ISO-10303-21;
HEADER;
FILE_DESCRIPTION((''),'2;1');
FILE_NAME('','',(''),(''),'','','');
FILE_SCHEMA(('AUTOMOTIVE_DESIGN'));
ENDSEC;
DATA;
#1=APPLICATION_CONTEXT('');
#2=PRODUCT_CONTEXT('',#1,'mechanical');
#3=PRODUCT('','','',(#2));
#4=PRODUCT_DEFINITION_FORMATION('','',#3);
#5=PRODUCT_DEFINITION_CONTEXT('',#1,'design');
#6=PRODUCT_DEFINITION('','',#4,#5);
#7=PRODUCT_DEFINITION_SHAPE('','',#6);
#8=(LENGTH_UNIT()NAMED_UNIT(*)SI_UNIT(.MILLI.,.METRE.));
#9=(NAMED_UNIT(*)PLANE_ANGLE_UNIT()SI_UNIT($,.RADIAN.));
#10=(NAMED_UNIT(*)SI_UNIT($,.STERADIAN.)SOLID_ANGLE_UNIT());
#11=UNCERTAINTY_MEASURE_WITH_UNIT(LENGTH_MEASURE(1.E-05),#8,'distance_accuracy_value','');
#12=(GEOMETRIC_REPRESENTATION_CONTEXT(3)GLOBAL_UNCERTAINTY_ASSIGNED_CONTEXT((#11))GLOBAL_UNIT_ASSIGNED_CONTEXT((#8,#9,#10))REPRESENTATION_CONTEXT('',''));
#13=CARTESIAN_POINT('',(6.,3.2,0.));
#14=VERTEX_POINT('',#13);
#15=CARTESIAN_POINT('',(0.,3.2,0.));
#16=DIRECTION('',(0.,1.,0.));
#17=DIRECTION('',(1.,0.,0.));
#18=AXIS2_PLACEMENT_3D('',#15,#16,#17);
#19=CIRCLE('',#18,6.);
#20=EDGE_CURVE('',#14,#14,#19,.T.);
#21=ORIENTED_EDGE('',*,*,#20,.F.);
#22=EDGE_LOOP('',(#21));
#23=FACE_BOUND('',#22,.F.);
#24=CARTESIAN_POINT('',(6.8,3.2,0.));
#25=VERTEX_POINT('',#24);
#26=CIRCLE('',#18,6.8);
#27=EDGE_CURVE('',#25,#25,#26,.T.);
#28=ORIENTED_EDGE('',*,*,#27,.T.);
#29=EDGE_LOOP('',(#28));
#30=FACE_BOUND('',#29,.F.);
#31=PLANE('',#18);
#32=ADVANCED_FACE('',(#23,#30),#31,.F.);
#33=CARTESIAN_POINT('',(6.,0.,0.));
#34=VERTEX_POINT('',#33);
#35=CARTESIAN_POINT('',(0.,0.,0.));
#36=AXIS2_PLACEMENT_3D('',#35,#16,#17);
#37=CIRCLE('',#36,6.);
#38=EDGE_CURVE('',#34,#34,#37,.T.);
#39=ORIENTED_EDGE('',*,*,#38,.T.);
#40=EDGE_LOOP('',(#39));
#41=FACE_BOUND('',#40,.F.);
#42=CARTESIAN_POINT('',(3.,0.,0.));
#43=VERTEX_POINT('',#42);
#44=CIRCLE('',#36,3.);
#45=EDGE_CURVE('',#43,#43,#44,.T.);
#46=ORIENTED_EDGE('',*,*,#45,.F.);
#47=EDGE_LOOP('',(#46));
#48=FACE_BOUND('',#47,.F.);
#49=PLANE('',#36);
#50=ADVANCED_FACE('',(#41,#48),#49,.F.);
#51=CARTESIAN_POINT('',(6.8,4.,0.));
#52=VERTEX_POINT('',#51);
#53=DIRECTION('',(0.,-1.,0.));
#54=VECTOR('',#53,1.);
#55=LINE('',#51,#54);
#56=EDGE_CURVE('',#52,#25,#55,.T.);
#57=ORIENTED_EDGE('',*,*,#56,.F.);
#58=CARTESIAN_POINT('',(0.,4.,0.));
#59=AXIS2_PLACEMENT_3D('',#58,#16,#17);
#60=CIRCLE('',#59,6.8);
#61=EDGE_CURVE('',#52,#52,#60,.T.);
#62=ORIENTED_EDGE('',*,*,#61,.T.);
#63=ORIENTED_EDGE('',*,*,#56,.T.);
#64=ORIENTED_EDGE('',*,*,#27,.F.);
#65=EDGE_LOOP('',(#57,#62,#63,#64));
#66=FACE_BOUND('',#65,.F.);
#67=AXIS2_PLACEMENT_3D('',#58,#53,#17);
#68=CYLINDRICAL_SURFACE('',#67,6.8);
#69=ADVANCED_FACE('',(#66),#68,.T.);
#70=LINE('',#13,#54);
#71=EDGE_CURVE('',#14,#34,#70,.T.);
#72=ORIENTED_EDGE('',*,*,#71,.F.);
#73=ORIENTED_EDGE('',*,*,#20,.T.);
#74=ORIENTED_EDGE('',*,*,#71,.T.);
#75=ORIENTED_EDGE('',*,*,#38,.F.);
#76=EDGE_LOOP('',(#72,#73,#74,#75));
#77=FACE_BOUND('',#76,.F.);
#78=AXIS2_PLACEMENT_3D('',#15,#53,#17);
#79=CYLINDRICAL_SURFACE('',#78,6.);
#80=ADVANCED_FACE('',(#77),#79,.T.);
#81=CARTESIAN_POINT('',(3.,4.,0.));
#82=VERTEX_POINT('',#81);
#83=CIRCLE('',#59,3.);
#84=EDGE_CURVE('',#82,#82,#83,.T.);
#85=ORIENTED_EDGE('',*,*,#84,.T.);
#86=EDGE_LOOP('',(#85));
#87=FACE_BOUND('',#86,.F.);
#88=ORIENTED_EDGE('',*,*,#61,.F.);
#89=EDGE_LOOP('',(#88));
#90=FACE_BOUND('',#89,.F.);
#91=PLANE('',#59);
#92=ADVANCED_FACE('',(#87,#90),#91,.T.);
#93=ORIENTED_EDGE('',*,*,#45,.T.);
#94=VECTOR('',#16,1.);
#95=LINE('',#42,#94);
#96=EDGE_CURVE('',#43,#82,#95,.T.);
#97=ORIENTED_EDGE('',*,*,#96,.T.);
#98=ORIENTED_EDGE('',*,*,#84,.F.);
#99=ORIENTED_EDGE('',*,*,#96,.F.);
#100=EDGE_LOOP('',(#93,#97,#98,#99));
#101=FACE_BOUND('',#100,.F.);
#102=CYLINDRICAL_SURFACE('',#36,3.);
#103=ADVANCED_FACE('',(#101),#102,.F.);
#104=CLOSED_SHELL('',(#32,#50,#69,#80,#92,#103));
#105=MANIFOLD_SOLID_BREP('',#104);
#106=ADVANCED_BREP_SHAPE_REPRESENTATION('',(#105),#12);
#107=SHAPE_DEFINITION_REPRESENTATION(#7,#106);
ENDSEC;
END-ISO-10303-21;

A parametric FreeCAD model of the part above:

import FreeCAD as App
import Part
import Sketcher

V = App.Vector
Q = App.Units.Quantity

doc = App.newDocument("Part")
params = doc.addObject("Spreadsheet::Sheet", "Params")
for row, (alias, value) in enumerate([
    ("sketch1_width", "3 mm"),
    ("sketch1_height", "4 mm"),
    ("sketch1_width2", "3.8 mm"),
    ("revolution_angle", "360 deg"),
], start=1):
    params.set(f"A{row}", alias)
    params.set(f"B{row}", "=" + value)
    params.setAlias(f"B{row}", alias)

body = doc.addObject("PartDesign::Body", "Body")

sketch1 = body.newObject("Sketcher::SketchObject", "Sketch")
sketch1.AttachmentSupport = (doc.getObject("XY_Plane"), [""])
sketch1.MapMode = "FlatFace"
sketch1.addGeometry([
    Part.LineSegment(V(6.8, 4, 0), V(3, 4, 0)),
    Part.LineSegment(V(3, 4, 0), V(3, 0, 0)),
    Part.LineSegment(V(3, 0, 0), V(6, 0, 0)),
    Part.LineSegment(V(6, 0, 0), V(6, 3.2, 0)),
    Part.LineSegment(V(6, 3.2, 0), V(6.8, 3.2, 0)),
    Part.LineSegment(V(6.8, 3.2, 0), V(6.8, 4, 0)),
], False)
sketch1.addConstraint([
    Sketcher.Constraint("Coincident", 0, 2, 1, 1),
    Sketcher.Constraint("Coincident", 1, 2, 2, 1),
    Sketcher.Constraint("Coincident", 2, 2, 3, 1),
    Sketcher.Constraint("Coincident", 3, 2, 4, 1),
    Sketcher.Constraint("Coincident", 4, 2, 5, 1),
    Sketcher.Constraint("Coincident", 5, 2, 0, 1),
    Sketcher.Constraint("Horizontal", 0),
    Sketcher.Constraint("Vertical", 1),
    Sketcher.Constraint("Horizontal", 2),
    Sketcher.Constraint("Vertical", 3),
    Sketcher.Constraint("Horizontal", 4),
    Sketcher.Constraint("Vertical", 5),
    Sketcher.Constraint("PointOnObject", 1, 2, -1),
    Sketcher.Constraint("Equal", 4, 5),
    Sketcher.Constraint("DistanceX", 2, 1, 2, 2, Q("3 mm")),
    Sketcher.Constraint("DistanceY", 1, 2, 1, 1, Q("4 mm")),
    Sketcher.Constraint("DistanceX", 0, 2, 0, 1, Q("3.8 mm")),
    Sketcher.Constraint("DistanceX", -1, 1, 0, 2, Q("3 mm")),
])
sketch1.setExpression("Constraints[14]", "Params.sketch1_width")
sketch1.setExpression("Constraints[15]", "Params.sketch1_height")
sketch1.setExpression("Constraints[16]", "Params.sketch1_width2")
revolution = body.newObject("PartDesign::Revolution", "Revolution")
revolution.Profile = sketch1
revolution.ReferenceAxis = (sketch1, ["V_Axis"])
revolution.setExpression("Angle", "Params.revolution_angle")

doc.recompute()
